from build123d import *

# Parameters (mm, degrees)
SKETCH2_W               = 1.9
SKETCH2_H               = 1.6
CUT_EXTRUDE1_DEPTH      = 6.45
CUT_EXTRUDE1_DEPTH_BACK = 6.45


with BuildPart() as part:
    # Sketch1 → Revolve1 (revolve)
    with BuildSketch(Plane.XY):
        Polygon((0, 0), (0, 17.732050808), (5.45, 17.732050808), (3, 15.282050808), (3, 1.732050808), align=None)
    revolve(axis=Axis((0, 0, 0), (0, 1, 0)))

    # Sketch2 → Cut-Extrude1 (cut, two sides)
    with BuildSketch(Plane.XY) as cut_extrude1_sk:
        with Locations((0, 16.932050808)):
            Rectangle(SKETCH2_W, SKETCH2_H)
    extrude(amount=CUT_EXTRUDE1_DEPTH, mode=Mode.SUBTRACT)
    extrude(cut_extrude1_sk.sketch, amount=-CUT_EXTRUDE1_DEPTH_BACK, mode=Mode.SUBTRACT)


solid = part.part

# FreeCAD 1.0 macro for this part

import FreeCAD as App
import Part
import Sketcher
Q = App.Units.Quantity

doc = App.newDocument("Part")
body = doc.addObject("PartDesign::Body", "Body")

sketch1 = body.newObject("Sketcher::SketchObject", "Sketch")
sketch1.AttachmentSupport = (doc.getObject("XY_Plane"), [""])
sketch1.MapMode = "FlatFace"
sketch1.addGeometry(Part.LineSegment(App.Vector(0, 17.7, 0), App.Vector(0, 0, 0)), False)
sketch1.addGeometry(Part.LineSegment(App.Vector(0, 0, 0), App.Vector(3, 1.7, 0)), False)
sketch1.addGeometry(Part.LineSegment(App.Vector(3, 1.7, 0), App.Vector(3, 15.3, 0)), False)
sketch1.addGeometry(Part.LineSegment(App.Vector(3, 15.3, 0), App.Vector(5.5, 17.7, 0)), False)
sketch1.addGeometry(Part.LineSegment(App.Vector(5.5, 17.7, 0), App.Vector(0, 17.7, 0)), False)
sketch1.addConstraint(Sketcher.Constraint("Coincident", 0, 2, 1, 1))
sketch1.addConstraint(Sketcher.Constraint("Coincident", 1, 2, 2, 1))
sketch1.addConstraint(Sketcher.Constraint("Coincident", 2, 2, 3, 1))
sketch1.addConstraint(Sketcher.Constraint("Coincident", 3, 2, 4, 1))
sketch1.addConstraint(Sketcher.Constraint("Coincident", 4, 2, 0, 1))
sketch1.addConstraint(Sketcher.Constraint("Vertical", 0))
sketch1.addConstraint(Sketcher.Constraint("Vertical", 2))
sketch1.addConstraint(Sketcher.Constraint("Horizontal", 4))
sketch1.addConstraint(Sketcher.Constraint("Coincident", 0, 2, -1, 1))
sketch1.addConstraint(Sketcher.Constraint("Angle", 1, Q("30 deg")))
sketch1.addConstraint(Sketcher.Constraint("Angle", 3, Q("45 deg")))
sketch1.addConstraint(Sketcher.Constraint("DistanceX", -1, 1, 1, 2, Q("3 mm")))
sketch1.addConstraint(Sketcher.Constraint("DistanceY", 1, 2, 3, 2, Q("16 mm")))
sketch1.addConstraint(Sketcher.Constraint("DistanceX", 4, 2, 4, 1, Q("5.45 mm")))
revolution = body.newObject("PartDesign::Revolution", "Revolution")
revolution.Profile = sketch1
revolution.ReferenceAxis = (sketch1, ["V_Axis"])
revolution.Angle = 360

sketch2 = body.newObject("Sketcher::SketchObject", "Sketch001")
sketch2.AttachmentSupport = (doc.getObject("XY_Plane"), [""])
sketch2.MapMode = "FlatFace"
sketch2.addGeometry(Part.LineSegment(App.Vector(-0.9, 17.7, 0), App.Vector(-0.9, 16.1, 0)), False)
sketch2.addGeometry(Part.LineSegment(App.Vector(-0.9, 16.1, 0), App.Vector(0.9, 16.1, 0)), False)
sketch2.addGeometry(Part.LineSegment(App.Vector(0.9, 16.1, 0), App.Vector(0.9, 17.7, 0)), False)
sketch2.addGeometry(Part.LineSegment(App.Vector(0.9, 17.7, 0), App.Vector(-0.9, 17.7, 0)), False)
sketch2.addConstraint(Sketcher.Constraint("Coincident", 0, 2, 1, 1))
sketch2.addConstraint(Sketcher.Constraint("Coincident", 1, 2, 2, 1))
sketch2.addConstraint(Sketcher.Constraint("Coincident", 2, 2, 3, 1))
sketch2.addConstraint(Sketcher.Constraint("Coincident", 3, 2, 0, 1))
sketch2.addConstraint(Sketcher.Constraint("Vertical", 0))
sketch2.addConstraint(Sketcher.Constraint("Horizontal", 1))
sketch2.addConstraint(Sketcher.Constraint("Vertical", 2))
sketch2.addConstraint(Sketcher.Constraint("Horizontal", 3))
sketch2.addConstraint(Sketcher.Constraint("DistanceX", 1, 1, 1, 2, Q("1.9 mm")))
sketch2.addConstraint(Sketcher.Constraint("DistanceY", 0, 2, 0, 1, Q("1.6 mm")))
sketch2.addConstraint(Sketcher.Constraint("DistanceX", 0, 2, -1, 1, Q("0.95 mm")))
sketch2.addConstraint(Sketcher.Constraint("DistanceY", -1, 1, 0, 2, Q("16.132051 mm")))
pocket1 = body.newObject("PartDesign::Pocket", "Pocket")
pocket1.Profile = sketch2
pocket1.Type = "ThroughAll"
pocket1.Midplane = True

doc.recompute()
